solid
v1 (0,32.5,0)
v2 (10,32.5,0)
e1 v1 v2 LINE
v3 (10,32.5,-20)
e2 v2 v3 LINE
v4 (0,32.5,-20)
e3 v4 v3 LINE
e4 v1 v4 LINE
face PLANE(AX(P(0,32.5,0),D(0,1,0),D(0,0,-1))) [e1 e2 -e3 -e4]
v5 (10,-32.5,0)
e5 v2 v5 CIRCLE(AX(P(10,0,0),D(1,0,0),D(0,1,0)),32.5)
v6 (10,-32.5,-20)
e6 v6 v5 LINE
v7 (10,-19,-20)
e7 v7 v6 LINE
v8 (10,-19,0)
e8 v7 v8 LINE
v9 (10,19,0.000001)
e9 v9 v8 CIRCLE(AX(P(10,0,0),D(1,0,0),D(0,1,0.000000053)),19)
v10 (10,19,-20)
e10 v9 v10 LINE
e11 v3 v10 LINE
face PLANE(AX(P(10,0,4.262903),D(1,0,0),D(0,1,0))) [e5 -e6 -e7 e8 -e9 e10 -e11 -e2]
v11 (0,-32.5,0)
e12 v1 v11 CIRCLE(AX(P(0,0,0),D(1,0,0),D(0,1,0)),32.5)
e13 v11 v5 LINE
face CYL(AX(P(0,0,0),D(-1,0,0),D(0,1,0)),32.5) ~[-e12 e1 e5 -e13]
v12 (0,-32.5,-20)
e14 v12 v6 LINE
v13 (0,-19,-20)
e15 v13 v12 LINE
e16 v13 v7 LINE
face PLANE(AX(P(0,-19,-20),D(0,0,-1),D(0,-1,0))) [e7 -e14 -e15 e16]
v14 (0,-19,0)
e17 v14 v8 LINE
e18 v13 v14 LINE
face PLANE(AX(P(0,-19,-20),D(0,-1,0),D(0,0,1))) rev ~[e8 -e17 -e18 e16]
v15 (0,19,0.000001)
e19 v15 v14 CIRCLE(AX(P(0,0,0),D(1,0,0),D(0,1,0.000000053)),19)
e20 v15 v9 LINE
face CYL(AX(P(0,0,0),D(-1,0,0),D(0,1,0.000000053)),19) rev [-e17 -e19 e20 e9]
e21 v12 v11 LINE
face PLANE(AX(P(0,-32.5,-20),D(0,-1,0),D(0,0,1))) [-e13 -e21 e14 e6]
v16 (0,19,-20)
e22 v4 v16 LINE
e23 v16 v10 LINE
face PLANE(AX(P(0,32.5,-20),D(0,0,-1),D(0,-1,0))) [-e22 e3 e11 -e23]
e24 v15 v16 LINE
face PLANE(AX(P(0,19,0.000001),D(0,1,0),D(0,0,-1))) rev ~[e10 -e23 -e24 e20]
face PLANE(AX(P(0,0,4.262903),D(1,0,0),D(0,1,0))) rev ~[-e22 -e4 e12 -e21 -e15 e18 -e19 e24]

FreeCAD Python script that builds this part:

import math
import FreeCAD as App
import Part
import Sketcher

doc = App.newDocument("Part")
params = doc.addObject("Spreadsheet::Sheet", "Params")
for row, (alias, value) in enumerate([
    ("sketch1_radius", "19 mm"),
    ("sketch1_radius2", "32.5 mm"),
    ("sketch1_height", "20 mm"),
    ("pad1_length", "10 mm"),
], start=1):
    params.set(f"A{row}", alias)
    params.set(f"B{row}", "=" + value)
    params.setAlias(f"B{row}", alias)

body = doc.addObject("PartDesign::Body", "Body")

# Sketch on YZ plane
sketch1 = body.newObject("Sketcher::SketchObject", "Sketch")
sketch1.AttachmentSupport = (doc.getObject("YZ_Plane"), [""])
sketch1.MapMode = "FlatFace"
sketch1.addGeometry(Part.ArcOfCircle(Part.Circle(App.Vector(0, 0, 0), App.Vector(0, 0, 1), 32), math.radians(0), math.radians(180)), False)
sketch1.addGeometry(Part.LineSegment(App.Vector(-32, 0, 0), App.Vector(-32, -20, 0)), False)
sketch1.addGeometry(Part.LineSegment(App.Vector(-32, -20, 0), App.Vector(-19, -20, 0)), False)
sketch1.addGeometry(Part.LineSegment(App.Vector(-19, -20, 0), App.Vector(-19, 0, 0)), False)
sketch1.addGeometry(Part.ArcOfCircle(Part.Circle(App.Vector(0, 0, 0), App.Vector(0, 0, 1), 19), math.radians(0), math.radians(180)), False)
sketch1.addGeometry(Part.LineSegment(App.Vector(19, 0, 0), App.Vector(19, -20, 0)), False)
sketch1.addGeometry(Part.LineSegment(App.Vector(19, -20, 0), App.Vector(32, -20, 0)), False)
sketch1.addGeometry(Part.LineSegment(App.Vector(32, -20, 0), App.Vector(32, 0, 0)), False)
sketch1.addConstraint(Sketcher.Constraint("Tangent", 0, 2, 1, 1))
sketch1.addConstraint(Sketcher.Constraint("Coincident", 1, 2, 2, 1))
sketch1.addConstraint(Sketcher.Constraint("Coincident", 2, 2, 3, 1))
sketch1.addConstraint(Sketcher.Constraint("Tangent", 3, 2, 4, 2))
sketch1.addConstraint(Sketcher.Constraint("Tangent", 4, 1, 5, 1))
sketch1.addConstraint(Sketcher.Constraint("Coincident", 5, 2, 6, 1))
sketch1.addConstraint(Sketcher.Constraint("Coincident", 6, 2, 7, 1))
sketch1.addConstraint(Sketcher.Constraint("Tangent", 7, 2, 0, 1))
sketch1.addConstraint(Sketcher.Constraint("Vertical", 1))
sketch1.addConstraint(Sketcher.Constraint("Horizontal", 2))
sketch1.addConstraint(Sketcher.Constraint("Vertical", 3))
sketch1.addConstraint(Sketcher.Constraint("Vertical", 5))
sketch1.addConstraint(Sketcher.Constraint("Horizontal", 6))
sketch1.addConstraint(Sketcher.Constraint("Vertical", 7))
sketch1.addConstraint(Sketcher.Constraint("Coincident", 0, 3, -1, 1))
sketch1.addConstraint(Sketcher.Constraint("Coincident", 4, 3, -1, 1))
sketch1.addConstraint(Sketcher.Constraint("Horizontal", 2, 2, 5, 2))
sketch1.addConstraint(Sketcher.Constraint("Radius", 4, 19.0))
sketch1.addConstraint(Sketcher.Constraint("Radius", 0, 32.5))
sketch1.addConstraint(Sketcher.Constraint("DistanceY", 1, 2, 1, 1, 20.0))
sketch1.setExpression("Constraints[17]", "Params.sketch1_radius")
sketch1.setExpression("Constraints[18]", "Params.sketch1_radius2")
sketch1.setExpression("Constraints[19]", "Params.sketch1_height")
pad1 = body.newObject("PartDesign::Pad", "Pad")
pad1.Profile = sketch1
pad1.setExpression("Length", "Params.pad1_length")

doc.recompute()
